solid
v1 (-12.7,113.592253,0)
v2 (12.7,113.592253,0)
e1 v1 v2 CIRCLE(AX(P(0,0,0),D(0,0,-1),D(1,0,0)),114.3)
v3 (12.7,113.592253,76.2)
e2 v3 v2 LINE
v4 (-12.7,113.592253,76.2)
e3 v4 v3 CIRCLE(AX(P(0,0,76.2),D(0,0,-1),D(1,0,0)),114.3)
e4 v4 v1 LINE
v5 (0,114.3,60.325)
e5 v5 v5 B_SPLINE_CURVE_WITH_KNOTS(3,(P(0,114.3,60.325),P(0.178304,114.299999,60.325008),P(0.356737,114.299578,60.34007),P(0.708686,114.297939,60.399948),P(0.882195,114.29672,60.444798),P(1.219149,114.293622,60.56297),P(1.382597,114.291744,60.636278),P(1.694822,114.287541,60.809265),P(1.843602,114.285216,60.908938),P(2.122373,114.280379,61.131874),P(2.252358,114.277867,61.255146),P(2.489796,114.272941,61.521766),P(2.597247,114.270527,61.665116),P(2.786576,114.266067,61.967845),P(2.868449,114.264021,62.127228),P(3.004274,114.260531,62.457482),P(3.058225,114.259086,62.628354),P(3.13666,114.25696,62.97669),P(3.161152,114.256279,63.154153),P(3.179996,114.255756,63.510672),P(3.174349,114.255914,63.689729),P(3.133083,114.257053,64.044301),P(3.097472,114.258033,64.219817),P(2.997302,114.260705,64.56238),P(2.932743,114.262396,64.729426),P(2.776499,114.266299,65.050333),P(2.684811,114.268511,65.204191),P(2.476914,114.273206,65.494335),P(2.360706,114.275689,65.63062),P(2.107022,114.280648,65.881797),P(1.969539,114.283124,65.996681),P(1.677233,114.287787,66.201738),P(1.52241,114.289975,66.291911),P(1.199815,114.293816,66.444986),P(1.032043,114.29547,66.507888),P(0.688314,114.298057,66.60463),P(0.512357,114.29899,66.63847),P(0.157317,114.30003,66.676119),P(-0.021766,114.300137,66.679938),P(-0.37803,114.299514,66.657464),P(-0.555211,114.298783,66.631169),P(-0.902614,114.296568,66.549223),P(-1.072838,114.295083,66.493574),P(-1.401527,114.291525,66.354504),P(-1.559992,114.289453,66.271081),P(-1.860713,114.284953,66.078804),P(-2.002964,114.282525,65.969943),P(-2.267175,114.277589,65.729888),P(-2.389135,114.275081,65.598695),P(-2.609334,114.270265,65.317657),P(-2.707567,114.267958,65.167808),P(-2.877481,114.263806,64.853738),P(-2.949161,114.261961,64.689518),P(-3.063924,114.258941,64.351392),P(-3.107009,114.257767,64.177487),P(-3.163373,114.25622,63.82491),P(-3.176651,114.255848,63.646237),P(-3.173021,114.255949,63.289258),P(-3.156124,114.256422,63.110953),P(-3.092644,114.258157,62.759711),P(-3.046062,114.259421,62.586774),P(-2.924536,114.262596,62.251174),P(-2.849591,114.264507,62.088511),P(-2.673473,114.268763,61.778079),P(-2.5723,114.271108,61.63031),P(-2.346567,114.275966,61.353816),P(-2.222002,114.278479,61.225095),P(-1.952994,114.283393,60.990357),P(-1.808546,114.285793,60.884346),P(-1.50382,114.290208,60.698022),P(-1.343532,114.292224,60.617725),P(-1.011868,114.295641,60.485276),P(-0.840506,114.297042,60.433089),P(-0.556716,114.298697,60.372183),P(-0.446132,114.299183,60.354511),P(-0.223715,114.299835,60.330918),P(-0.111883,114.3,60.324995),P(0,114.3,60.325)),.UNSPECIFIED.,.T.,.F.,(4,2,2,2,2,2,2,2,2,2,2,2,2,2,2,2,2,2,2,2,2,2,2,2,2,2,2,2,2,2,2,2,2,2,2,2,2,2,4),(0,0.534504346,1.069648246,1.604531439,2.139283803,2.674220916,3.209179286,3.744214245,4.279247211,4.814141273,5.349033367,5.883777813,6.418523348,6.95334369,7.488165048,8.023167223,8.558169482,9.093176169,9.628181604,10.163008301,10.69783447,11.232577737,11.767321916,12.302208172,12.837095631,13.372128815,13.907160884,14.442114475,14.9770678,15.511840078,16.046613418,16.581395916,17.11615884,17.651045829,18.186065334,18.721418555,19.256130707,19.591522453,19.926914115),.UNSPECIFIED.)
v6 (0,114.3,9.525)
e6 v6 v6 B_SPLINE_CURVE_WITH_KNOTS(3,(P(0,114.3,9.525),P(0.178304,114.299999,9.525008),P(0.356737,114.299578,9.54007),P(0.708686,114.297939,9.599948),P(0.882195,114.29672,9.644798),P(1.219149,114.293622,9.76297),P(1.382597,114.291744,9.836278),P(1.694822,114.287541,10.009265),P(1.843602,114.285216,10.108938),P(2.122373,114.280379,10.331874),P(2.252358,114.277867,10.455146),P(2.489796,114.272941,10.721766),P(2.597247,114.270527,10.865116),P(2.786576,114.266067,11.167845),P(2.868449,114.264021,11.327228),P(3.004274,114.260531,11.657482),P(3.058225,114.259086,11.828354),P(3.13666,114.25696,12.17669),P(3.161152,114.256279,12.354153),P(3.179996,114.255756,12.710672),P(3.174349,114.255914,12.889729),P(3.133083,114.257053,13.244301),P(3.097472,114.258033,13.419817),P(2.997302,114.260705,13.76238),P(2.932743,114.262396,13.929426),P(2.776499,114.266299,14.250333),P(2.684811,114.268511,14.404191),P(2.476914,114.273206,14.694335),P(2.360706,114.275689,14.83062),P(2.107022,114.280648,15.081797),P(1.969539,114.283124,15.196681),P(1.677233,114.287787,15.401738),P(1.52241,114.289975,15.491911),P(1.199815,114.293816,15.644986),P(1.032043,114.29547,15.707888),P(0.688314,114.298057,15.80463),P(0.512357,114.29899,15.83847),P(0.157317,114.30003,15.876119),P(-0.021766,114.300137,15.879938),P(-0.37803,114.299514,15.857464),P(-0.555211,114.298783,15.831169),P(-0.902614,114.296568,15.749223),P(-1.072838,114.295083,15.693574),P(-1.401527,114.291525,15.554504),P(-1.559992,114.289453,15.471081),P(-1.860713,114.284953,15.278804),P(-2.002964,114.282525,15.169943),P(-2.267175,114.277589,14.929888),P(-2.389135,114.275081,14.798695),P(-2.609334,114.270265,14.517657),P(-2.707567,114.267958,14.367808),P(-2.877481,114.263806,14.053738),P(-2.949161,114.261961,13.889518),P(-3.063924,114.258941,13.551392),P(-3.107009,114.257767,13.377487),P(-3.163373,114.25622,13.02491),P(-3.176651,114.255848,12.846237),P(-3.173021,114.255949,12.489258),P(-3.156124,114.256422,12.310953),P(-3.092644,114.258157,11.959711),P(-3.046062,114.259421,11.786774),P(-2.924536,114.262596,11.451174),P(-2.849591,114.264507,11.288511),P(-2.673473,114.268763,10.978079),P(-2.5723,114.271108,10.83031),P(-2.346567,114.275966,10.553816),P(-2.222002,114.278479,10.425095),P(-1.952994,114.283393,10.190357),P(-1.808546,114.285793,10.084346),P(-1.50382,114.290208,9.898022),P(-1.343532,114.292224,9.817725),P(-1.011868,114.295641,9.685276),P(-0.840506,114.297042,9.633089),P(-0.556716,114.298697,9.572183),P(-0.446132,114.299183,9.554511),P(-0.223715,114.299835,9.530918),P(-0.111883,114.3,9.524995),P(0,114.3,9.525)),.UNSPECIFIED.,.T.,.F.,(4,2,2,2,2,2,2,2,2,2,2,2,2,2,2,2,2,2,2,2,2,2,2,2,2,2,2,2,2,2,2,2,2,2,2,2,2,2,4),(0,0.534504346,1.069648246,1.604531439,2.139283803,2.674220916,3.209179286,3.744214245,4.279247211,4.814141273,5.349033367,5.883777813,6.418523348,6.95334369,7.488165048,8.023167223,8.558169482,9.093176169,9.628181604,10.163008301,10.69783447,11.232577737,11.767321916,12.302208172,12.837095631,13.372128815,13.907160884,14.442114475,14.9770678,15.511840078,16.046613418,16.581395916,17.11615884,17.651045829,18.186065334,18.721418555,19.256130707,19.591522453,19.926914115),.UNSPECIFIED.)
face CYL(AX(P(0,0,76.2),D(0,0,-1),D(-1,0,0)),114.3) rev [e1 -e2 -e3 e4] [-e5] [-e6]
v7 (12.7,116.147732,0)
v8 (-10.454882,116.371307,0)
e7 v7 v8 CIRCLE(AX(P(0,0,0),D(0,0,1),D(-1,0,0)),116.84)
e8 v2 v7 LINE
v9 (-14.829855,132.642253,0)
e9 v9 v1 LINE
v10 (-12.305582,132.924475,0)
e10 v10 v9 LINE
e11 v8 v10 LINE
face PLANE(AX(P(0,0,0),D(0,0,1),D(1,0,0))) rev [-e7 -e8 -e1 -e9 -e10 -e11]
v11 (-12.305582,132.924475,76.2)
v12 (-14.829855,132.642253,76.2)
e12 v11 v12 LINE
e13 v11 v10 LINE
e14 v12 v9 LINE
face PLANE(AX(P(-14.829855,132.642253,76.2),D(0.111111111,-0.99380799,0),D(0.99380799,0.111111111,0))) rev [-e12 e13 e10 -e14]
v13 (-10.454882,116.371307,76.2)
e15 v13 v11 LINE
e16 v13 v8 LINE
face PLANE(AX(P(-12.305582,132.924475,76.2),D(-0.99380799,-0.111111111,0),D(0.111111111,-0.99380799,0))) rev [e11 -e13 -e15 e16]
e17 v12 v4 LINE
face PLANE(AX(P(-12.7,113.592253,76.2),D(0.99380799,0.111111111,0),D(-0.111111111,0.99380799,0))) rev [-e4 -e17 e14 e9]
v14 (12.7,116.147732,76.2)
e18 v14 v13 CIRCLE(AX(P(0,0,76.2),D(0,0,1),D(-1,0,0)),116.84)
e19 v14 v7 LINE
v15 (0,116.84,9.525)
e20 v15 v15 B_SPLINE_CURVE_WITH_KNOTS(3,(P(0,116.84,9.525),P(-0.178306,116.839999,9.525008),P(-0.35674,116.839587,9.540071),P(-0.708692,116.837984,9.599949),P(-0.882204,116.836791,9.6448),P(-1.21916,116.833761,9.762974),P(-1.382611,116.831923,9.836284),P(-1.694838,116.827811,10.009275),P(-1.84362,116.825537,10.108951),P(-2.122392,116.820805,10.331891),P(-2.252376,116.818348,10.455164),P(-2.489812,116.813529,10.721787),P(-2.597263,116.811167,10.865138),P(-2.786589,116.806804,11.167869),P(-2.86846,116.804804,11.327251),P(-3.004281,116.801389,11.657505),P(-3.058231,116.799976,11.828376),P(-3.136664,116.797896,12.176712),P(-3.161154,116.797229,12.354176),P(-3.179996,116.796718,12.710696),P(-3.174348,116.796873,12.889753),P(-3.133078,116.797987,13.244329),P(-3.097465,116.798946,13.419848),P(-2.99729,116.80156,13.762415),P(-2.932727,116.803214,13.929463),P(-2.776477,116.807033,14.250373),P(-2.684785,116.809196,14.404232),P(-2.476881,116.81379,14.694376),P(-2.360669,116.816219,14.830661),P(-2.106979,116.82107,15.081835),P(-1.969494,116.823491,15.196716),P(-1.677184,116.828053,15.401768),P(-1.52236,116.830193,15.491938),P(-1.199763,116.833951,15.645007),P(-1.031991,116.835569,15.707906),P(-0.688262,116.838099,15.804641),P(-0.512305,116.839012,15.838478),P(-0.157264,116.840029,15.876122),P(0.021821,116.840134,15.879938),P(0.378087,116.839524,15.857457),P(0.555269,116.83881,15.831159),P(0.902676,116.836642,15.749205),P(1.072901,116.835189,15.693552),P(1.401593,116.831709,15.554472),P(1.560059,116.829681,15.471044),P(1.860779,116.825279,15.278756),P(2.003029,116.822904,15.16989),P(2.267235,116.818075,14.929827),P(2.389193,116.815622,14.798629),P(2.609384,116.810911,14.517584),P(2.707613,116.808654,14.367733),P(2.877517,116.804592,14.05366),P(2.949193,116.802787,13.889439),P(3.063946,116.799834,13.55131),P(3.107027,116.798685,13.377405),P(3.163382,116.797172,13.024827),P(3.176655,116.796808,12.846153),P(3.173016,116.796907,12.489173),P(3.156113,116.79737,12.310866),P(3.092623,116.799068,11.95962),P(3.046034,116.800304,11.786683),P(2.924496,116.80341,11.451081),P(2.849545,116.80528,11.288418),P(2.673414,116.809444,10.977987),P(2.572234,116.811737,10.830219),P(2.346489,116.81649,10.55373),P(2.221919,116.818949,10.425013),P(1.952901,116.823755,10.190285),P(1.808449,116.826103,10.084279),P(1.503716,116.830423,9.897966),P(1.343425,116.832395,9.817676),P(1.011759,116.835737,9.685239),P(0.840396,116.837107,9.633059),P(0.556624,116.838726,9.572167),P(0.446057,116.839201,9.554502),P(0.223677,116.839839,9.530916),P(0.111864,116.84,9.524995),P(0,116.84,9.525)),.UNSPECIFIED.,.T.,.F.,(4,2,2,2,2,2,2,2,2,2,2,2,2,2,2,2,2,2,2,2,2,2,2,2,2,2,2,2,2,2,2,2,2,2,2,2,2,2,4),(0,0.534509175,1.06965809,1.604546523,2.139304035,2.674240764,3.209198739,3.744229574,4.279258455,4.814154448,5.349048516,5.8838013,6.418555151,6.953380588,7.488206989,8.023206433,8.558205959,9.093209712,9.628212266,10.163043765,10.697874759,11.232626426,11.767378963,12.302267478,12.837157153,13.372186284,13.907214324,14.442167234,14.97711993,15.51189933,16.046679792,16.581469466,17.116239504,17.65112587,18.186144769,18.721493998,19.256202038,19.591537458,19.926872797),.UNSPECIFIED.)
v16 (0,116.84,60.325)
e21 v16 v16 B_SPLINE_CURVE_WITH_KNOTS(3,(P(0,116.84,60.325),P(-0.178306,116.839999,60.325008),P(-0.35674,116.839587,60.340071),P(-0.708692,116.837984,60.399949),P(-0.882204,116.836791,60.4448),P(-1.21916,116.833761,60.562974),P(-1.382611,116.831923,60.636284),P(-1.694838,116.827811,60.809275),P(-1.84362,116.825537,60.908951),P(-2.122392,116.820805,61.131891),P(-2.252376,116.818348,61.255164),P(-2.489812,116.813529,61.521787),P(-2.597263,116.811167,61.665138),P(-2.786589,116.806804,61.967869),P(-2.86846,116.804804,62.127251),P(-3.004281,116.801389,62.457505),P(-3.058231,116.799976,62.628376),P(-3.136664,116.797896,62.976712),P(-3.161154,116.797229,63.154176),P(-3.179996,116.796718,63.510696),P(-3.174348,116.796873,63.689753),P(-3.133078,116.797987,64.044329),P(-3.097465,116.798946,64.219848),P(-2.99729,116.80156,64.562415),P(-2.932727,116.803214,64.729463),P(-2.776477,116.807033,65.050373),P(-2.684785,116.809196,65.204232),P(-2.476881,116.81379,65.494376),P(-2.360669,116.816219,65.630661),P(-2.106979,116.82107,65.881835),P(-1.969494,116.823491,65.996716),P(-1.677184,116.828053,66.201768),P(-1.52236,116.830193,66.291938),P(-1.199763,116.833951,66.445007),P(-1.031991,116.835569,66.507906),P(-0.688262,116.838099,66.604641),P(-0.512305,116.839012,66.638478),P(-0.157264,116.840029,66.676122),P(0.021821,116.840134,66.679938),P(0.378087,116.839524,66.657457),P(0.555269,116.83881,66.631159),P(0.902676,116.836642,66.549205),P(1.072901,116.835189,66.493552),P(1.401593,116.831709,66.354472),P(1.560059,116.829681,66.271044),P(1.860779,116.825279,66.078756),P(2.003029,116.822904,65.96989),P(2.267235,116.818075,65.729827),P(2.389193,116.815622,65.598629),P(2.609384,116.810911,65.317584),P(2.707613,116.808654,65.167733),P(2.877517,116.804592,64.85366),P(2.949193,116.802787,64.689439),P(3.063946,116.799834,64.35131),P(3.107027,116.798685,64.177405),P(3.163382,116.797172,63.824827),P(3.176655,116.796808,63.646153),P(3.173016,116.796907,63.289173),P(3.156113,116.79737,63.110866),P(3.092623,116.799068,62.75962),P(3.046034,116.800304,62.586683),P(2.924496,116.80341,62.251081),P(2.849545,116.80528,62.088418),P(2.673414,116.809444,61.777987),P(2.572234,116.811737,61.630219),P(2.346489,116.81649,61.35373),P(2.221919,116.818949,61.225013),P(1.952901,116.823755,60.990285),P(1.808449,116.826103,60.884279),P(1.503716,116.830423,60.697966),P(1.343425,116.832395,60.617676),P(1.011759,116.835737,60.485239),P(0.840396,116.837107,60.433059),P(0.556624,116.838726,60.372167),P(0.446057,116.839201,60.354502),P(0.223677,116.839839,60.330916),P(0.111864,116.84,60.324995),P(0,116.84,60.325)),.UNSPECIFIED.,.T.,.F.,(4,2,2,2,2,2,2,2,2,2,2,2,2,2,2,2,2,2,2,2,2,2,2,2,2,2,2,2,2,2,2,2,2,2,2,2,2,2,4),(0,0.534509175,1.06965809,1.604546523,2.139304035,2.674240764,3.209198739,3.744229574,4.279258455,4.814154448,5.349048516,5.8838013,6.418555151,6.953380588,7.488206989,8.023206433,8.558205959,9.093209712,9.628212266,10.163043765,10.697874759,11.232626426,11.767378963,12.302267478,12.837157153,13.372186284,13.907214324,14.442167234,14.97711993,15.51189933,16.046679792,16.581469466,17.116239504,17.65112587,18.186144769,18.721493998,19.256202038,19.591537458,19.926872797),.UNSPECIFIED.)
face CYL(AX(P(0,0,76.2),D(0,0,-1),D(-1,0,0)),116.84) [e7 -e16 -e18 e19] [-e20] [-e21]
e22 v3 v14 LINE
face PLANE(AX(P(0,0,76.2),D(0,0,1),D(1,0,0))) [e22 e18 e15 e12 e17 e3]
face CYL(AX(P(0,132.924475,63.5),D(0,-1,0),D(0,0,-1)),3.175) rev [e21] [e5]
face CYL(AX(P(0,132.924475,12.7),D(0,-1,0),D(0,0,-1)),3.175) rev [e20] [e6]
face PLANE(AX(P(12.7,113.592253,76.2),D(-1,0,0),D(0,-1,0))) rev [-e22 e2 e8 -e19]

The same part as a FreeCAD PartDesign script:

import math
import FreeCAD as App
import Part
import Sketcher

V = App.Vector
Q = App.Units.Quantity

doc = App.newDocument("Part")
params = doc.addObject("Spreadsheet::Sheet", "Params")
for row, (alias, value) in enumerate([
    ("sketch1_radius", "4.5 in"),
    ("sketch1_radius2", "4.6 in"),
    ("sketch1_length", "0.1 in"),
    ("pad1_length", "3 in"),
    ("sketch2_diameter", "0.25 in"),
], start=1):
    params.set(f"A{row}", alias)
    params.set(f"B{row}", "=" + value)
    params.setAlias(f"B{row}", alias)

body = doc.addObject("PartDesign::Body", "Body")

# Sketch on XY plane
sketch1 = body.newObject("Sketcher::SketchObject", "Sketch")
sketch1.AttachmentSupport = (doc.getObject("XY_Plane"), [""])
sketch1.MapMode = "FlatFace"
sketch1.addGeometry([
    Part.LineSegment(V(-14.8, 132.6, 0), V(-12.7, 113.6, 0)),  # 0
    Part.ArcOfCircle(Part.Circle(V(0, 0, 0), V(0, 0, 1), 114.3), math.radians(83.62), math.radians(96.38)),  # 1
    Part.LineSegment(V(12.7, 113.6, 0), V(12.7, 116.1, 0)),  # 2
    Part.ArcOfCircle(Part.Circle(V(0, 0, 0), V(0, 0, 1), 116.8), math.radians(83.76), math.radians(95.13)),  # 3
    Part.LineSegment(V(-10.5, 116.4, 0), V(-12.3, 132.9, 0)),  # 4
    Part.LineSegment(V(-12.3, 132.9, 0), V(-14.8, 132.6, 0)),  # 5
], False)
sketch1.addConstraint([
    Sketcher.Constraint("Coincident", 0, 2, 1, 2),
    Sketcher.Constraint("Coincident", 1, 1, 2, 1),
    Sketcher.Constraint("Coincident", 2, 2, 3, 1),
    Sketcher.Constraint("Coincident", 3, 2, 4, 1),
    Sketcher.Constraint("Coincident", 4, 2, 5, 1),
    Sketcher.Constraint("Coincident", 5, 2, 0, 1),
    Sketcher.Constraint("Vertical", 2),
    Sketcher.Constraint("Coincident", 1, 3, -1, 1),
    Sketcher.Constraint("Coincident", 3, 3, -1, 1),
    Sketcher.Constraint("Parallel", 0, 4),
    Sketcher.Constraint("Perpendicular", 4, 5),
    Sketcher.Constraint("Horizontal", 0, 2, 1, 1),
    Sketcher.Constraint("Radius", 1, Q("4.5 in")),
    Sketcher.Constraint("Radius", 3, Q("4.6 in")),
    Sketcher.Constraint("DistanceX", 0, 2, 1, 1, Q("1 in")),
    Sketcher.Constraint("Distance", 5, Q("0.1 in")),
    Sketcher.Constraint("DistanceY", 0, 2, 5, 2, Q("0.75 in")),
    Sketcher.Constraint("DistanceX", 4, 2, 3, 2, 1.850701),
])
sketch1.setExpression("Constraints[12]", "Params.sketch1_radius")
sketch1.setExpression("Constraints[13]", "Params.sketch1_radius2")
sketch1.setExpression("Constraints[15]", "Params.sketch1_length")
pad1 = body.newObject("PartDesign::Pad", "Pad")
pad1.Profile = sketch1
pad1.setExpression("Length", "Params.pad1_length")

# Sketch on XZ plane
sketch2 = body.newObject("Sketcher::SketchObject", "Sketch001")
sketch2.AttachmentSupport = (doc.getObject("XZ_Plane"), [""])
sketch2.MapMode = "FlatFace"
sketch2.addGeometry([
    Part.Circle(V(0, 12.7, 0), V(0, 0, 1), 3.2),
    Part.Circle(V(0, 63.5, 0), V(0, 0, 1), 3.2),
], False)
sketch2.addConstraint([
    Sketcher.Constraint("Equal", 0, 1),
    Sketcher.Constraint("PointOnObject", 0, 3, -2),
    Sketcher.Constraint("PointOnObject", 1, 3, -2),
    Sketcher.Constraint("Diameter", 0, Q("0.25 in")),
    Sketcher.Constraint("DistanceY", 0, 3, 1, 3, Q("2 in")),
    Sketcher.Constraint("DistanceY", -1, 1, 0, 3, Q("0.5 in")),
])
sketch2.setExpression("Constraints[3]", "Params.sketch2_diameter")
pocket1 = body.newObject("PartDesign::Pocket", "Pocket")
pocket1.Profile = sketch2
pocket1.Type = "ThroughAll"

doc.recompute()
